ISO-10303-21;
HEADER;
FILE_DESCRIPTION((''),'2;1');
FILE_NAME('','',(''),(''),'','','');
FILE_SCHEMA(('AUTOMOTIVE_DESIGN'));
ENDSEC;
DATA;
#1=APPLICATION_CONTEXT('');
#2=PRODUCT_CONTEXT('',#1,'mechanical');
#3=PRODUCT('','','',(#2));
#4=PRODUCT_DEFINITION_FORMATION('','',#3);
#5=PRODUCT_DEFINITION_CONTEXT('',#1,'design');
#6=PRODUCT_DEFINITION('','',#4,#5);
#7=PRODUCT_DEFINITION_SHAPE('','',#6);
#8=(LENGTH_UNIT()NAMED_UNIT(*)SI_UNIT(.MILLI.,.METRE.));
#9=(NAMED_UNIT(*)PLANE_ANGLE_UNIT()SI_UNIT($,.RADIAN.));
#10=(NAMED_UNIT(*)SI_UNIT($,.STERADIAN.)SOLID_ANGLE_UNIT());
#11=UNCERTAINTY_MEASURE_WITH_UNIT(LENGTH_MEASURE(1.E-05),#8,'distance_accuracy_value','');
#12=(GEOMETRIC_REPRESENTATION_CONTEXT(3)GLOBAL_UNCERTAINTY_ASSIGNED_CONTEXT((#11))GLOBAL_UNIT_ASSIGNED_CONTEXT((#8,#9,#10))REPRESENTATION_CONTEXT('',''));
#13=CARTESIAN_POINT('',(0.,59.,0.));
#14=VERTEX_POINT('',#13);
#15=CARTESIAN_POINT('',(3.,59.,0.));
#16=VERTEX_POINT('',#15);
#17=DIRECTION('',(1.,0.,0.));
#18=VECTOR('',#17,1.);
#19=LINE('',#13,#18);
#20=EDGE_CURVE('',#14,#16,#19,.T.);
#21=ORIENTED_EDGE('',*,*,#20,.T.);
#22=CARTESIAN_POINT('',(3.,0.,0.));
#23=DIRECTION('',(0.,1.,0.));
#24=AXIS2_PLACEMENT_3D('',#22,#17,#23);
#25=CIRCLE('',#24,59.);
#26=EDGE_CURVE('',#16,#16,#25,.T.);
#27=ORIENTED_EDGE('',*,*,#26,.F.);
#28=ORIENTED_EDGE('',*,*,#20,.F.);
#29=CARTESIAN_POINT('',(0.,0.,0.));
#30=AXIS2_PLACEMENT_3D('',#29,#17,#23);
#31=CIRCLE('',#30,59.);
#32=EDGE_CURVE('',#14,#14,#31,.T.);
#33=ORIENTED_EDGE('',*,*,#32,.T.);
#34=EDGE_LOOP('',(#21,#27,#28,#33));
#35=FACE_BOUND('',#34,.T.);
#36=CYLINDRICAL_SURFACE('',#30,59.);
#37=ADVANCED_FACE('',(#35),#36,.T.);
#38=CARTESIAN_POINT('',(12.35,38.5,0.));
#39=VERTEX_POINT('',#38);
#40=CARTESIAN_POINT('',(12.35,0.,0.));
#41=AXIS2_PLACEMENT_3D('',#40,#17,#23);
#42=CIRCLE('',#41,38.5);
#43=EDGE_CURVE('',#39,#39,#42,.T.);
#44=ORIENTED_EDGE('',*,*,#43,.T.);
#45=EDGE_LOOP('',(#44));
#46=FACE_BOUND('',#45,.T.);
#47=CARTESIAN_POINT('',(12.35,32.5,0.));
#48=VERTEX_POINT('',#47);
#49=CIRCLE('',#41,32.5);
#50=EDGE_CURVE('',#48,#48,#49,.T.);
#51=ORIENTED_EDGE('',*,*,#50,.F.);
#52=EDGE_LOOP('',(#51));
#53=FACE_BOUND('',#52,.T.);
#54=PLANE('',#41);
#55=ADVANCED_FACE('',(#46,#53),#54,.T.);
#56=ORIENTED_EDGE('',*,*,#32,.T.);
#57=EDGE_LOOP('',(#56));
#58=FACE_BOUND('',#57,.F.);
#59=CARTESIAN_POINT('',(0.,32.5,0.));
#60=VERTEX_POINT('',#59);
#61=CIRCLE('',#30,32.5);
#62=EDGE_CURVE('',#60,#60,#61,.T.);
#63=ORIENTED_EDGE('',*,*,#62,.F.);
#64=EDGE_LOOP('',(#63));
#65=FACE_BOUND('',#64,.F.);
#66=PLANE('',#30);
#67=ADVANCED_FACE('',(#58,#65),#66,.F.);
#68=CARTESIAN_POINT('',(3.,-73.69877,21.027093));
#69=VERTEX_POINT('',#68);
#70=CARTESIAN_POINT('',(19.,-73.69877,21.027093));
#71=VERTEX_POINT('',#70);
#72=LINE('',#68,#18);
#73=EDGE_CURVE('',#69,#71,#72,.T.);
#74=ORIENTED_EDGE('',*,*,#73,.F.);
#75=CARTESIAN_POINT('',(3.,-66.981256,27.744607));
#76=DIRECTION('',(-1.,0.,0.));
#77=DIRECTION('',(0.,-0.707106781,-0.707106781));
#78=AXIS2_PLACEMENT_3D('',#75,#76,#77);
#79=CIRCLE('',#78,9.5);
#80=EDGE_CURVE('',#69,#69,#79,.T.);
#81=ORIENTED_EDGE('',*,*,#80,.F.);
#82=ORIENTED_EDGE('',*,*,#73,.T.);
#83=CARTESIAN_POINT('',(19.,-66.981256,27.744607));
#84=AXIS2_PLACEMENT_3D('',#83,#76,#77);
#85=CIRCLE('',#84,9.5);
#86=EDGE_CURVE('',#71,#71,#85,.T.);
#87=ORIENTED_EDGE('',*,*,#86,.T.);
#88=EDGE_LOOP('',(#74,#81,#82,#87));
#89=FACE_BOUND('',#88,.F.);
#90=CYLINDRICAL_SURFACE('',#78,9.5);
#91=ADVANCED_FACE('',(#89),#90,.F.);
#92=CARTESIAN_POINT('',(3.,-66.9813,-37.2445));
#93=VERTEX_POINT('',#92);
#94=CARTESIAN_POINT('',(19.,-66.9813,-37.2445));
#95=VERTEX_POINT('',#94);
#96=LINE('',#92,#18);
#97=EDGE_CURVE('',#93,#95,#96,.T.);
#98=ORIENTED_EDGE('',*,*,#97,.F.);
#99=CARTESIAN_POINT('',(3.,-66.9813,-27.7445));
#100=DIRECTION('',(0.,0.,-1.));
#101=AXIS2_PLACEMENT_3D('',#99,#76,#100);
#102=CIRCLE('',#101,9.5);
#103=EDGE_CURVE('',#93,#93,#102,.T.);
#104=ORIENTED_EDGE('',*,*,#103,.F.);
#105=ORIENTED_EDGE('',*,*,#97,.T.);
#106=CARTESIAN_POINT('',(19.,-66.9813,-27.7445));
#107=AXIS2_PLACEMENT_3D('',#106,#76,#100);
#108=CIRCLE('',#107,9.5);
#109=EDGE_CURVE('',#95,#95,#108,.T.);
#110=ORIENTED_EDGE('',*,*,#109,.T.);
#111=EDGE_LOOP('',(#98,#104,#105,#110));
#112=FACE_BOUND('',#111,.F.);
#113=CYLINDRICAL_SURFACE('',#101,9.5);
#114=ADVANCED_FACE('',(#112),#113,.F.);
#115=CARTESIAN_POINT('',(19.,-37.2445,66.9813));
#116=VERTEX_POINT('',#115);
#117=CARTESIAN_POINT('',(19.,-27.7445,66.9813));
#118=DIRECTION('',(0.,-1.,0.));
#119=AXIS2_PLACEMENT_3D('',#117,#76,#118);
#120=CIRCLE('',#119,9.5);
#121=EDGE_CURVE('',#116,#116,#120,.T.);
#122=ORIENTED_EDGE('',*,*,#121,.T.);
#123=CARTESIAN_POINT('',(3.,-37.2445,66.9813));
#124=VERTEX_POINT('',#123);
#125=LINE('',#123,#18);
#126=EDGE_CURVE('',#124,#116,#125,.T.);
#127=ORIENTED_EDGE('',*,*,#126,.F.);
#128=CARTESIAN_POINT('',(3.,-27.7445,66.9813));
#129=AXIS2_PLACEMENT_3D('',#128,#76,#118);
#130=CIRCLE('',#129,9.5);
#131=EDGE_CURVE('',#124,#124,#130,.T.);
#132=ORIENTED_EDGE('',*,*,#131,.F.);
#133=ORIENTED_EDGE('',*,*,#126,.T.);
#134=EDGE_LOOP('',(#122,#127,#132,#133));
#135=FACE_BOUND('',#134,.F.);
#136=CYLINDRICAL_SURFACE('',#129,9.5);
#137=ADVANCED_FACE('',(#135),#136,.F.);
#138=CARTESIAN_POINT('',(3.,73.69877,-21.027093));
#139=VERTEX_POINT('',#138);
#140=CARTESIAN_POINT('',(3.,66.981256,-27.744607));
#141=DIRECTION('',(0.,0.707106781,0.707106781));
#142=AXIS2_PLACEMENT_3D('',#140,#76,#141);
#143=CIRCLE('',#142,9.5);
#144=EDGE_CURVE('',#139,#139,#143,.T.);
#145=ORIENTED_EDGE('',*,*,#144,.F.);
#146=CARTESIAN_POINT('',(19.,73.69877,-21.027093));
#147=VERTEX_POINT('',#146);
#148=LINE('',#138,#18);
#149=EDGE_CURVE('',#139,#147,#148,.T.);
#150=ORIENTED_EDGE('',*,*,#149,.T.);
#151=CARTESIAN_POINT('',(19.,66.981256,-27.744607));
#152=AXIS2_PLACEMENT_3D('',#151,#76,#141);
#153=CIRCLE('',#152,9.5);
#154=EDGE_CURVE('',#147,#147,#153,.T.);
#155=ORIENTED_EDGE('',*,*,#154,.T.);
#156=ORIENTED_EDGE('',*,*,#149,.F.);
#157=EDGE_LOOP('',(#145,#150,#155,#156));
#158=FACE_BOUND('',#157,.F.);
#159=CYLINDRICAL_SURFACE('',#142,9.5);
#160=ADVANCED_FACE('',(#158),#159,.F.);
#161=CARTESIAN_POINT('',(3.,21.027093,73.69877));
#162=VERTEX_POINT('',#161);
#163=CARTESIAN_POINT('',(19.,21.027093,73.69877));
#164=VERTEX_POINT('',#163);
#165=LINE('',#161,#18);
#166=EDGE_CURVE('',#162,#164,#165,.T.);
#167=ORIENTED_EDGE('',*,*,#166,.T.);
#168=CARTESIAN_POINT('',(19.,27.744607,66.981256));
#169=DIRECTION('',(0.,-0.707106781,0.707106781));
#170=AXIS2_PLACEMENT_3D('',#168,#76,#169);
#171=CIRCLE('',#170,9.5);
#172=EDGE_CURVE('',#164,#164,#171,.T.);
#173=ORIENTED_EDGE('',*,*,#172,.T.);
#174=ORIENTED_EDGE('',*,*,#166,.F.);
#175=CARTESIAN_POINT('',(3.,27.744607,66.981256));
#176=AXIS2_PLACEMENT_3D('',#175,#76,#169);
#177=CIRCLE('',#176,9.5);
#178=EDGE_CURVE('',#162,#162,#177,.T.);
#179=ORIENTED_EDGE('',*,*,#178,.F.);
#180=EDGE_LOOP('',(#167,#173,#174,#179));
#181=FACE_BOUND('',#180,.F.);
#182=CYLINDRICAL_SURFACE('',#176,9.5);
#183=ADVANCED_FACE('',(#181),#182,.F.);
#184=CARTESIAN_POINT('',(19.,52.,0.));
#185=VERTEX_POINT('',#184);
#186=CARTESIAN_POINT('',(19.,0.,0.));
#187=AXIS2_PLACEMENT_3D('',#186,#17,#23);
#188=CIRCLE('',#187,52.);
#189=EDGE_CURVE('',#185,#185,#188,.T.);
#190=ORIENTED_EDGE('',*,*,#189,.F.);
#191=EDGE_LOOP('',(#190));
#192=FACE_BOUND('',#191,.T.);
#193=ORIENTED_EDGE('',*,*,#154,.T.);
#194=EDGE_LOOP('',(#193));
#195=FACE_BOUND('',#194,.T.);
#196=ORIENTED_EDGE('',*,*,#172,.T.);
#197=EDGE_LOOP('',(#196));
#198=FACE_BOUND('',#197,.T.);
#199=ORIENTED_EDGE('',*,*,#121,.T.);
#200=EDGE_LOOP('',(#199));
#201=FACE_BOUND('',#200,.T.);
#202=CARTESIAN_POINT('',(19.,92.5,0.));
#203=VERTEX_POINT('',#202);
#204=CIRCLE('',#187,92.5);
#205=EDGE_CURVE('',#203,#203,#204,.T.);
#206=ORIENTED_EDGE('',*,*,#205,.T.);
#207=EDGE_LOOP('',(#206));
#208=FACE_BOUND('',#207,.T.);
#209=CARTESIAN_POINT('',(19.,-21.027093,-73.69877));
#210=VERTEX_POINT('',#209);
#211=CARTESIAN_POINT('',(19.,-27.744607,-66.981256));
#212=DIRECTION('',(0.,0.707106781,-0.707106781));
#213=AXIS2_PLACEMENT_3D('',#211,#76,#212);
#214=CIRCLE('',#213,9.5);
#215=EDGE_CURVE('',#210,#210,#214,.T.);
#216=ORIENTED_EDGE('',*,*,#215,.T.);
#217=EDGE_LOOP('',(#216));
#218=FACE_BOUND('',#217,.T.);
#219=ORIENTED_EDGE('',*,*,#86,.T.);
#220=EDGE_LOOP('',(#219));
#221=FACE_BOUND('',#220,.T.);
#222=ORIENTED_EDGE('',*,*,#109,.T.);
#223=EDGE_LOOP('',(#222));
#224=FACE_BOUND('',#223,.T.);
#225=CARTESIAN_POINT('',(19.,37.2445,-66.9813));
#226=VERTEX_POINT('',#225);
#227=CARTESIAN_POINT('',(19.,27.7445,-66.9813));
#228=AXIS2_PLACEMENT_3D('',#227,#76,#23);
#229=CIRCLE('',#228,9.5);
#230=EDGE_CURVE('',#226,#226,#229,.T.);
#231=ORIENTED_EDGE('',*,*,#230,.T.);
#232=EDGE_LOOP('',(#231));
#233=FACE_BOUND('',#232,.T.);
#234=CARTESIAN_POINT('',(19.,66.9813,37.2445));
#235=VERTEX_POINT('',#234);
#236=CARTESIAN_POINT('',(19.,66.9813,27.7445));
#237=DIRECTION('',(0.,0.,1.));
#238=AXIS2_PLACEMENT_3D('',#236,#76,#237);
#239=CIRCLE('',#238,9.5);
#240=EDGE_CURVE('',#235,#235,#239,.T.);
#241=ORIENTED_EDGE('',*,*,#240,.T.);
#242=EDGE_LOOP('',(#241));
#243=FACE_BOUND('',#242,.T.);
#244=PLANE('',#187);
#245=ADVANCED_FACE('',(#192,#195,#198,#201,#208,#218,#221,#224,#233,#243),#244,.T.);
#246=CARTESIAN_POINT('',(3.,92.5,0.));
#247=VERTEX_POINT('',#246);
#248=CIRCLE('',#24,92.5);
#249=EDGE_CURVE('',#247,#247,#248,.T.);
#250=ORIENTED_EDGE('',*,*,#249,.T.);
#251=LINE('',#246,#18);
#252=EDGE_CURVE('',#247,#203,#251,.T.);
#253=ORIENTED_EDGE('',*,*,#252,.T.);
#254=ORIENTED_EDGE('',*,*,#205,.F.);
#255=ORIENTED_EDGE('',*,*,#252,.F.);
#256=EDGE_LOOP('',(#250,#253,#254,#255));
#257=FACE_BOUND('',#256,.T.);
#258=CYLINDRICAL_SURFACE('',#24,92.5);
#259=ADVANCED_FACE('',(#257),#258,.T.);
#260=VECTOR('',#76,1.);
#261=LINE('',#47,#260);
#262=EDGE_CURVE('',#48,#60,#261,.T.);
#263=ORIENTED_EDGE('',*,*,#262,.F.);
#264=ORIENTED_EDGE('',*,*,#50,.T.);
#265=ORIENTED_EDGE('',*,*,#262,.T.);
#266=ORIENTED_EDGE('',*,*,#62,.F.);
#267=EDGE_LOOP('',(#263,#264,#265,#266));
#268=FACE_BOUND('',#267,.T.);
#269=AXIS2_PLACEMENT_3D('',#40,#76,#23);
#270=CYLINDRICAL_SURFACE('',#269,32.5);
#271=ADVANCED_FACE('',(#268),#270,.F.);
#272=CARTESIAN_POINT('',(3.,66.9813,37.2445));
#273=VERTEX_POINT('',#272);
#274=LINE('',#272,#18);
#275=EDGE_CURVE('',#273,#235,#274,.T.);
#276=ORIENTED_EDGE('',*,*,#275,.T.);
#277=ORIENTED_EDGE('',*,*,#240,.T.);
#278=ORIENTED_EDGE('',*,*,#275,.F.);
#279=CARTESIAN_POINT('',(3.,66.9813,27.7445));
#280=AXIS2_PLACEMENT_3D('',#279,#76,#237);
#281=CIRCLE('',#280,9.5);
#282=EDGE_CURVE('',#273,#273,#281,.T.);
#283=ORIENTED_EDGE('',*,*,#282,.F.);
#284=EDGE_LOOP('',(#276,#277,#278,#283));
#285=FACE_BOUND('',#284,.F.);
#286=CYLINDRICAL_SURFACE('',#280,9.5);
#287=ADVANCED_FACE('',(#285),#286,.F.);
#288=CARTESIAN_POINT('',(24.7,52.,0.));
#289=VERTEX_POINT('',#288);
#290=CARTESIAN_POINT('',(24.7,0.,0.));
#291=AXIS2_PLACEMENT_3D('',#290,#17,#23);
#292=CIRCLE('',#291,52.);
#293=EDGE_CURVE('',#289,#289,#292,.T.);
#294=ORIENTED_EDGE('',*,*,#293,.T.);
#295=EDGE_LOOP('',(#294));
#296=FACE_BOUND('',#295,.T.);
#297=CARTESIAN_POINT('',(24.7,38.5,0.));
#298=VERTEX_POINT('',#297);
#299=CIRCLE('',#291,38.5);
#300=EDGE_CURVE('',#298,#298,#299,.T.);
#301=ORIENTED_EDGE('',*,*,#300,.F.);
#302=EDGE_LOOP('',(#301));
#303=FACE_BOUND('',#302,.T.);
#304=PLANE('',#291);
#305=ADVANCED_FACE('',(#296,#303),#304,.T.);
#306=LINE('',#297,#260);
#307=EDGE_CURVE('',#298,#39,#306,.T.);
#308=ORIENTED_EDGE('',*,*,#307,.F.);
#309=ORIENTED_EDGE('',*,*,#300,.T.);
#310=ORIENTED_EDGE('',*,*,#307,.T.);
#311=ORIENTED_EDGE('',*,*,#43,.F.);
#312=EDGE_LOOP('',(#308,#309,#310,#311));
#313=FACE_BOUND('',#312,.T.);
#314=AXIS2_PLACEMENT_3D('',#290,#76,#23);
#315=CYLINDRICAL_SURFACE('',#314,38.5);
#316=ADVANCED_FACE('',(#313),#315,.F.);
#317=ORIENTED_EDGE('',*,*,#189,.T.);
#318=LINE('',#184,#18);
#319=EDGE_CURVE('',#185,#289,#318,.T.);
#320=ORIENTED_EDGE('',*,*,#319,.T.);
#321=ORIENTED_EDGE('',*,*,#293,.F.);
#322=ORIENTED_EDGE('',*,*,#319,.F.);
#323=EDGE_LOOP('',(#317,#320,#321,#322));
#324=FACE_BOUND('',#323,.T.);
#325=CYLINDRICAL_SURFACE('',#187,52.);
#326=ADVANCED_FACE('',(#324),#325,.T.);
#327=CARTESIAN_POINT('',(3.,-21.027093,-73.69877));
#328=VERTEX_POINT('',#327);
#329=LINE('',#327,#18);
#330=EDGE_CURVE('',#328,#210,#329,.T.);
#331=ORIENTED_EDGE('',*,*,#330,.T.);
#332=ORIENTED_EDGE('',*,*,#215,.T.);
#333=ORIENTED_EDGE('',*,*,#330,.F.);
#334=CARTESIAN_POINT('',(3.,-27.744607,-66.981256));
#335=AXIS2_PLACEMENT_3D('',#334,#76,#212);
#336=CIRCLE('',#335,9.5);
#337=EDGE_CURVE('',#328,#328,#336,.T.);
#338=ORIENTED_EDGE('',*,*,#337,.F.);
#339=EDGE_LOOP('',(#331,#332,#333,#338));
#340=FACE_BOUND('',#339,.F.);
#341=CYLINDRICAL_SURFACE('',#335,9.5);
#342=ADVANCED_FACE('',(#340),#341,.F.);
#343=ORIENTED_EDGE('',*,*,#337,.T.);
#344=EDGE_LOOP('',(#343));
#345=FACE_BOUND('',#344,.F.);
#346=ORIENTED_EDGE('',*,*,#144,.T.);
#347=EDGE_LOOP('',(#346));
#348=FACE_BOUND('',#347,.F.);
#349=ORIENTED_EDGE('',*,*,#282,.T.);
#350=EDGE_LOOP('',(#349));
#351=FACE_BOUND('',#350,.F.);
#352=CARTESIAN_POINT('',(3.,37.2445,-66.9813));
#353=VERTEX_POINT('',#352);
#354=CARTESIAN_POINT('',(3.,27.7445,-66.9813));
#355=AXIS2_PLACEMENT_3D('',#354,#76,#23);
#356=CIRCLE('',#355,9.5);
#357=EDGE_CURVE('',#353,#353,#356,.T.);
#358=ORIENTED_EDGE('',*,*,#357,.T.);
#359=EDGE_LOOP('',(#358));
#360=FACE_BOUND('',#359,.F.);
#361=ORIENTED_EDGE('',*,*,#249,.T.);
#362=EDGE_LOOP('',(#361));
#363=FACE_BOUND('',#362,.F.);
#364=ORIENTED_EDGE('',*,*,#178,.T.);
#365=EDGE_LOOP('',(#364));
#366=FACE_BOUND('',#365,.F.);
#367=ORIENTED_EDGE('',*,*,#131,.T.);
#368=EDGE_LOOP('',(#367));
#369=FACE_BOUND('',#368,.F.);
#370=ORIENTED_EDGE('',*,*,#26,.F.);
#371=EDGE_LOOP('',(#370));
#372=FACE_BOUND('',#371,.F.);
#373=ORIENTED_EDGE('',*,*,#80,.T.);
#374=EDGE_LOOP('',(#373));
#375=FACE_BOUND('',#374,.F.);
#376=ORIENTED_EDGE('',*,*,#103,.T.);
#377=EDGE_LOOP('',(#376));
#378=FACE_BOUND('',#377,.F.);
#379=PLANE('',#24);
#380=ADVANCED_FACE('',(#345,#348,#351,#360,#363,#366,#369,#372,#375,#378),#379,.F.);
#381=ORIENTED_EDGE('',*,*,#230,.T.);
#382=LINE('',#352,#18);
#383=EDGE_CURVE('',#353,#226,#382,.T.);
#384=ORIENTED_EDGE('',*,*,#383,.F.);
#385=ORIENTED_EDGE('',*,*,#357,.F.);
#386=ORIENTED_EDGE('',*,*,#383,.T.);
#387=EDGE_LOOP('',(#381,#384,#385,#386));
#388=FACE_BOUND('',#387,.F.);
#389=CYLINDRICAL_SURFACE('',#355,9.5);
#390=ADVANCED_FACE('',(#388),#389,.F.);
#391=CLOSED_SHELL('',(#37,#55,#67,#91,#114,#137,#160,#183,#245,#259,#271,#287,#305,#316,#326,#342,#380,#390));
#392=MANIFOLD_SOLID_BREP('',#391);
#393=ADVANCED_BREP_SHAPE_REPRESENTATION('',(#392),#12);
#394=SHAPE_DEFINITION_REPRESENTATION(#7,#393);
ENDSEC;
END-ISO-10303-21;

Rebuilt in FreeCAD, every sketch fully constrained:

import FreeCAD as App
import Part
import Sketcher

V = App.Vector
Q = App.Units.Quantity


def add_polygon(sketch, points):
    """Adds a closed chain of lines whose ends are joined by coincident constraints."""
    first, n = sketch.GeometryCount, len(points)
    for a, b in zip(points, points[1:] + points[:1]):
        sketch.addGeometry(Part.LineSegment(App.Vector(*a, 0), App.Vector(*b, 0)), False)
    for i in range(n):
        sketch.addConstraint(Sketcher.Constraint("Coincident", first + i, 2, first + (i + 1) % n, 1))

doc = App.newDocument("Part")
body = doc.addObject("PartDesign::Body", "Body")

sketch1 = doc.addObject("Sketcher::SketchObject", "Sketch")
body.addObject(sketch1)
sketch1.AttachmentSupport = (doc.XY_Plane, [""])
sketch1.MapMode = "FlatFace"
add_polygon(sketch1, [(3, 59), (0, 59), (0, 32.5), (12.3, 32.5), (12.3, 38.5), (24.7, 38.5), (24.7, 52), (19, 52), (19, 92.5), (3, 92.5)])
sketch1.addConstraint(Sketcher.Constraint("Horizontal", 0))
sketch1.addConstraint(Sketcher.Constraint("Vertical", 1))
sketch1.addConstraint(Sketcher.Constraint("Horizontal", 2))
sketch1.addConstraint(Sketcher.Constraint("Vertical", 3))
sketch1.addConstraint(Sketcher.Constraint("Horizontal", 4))
sketch1.addConstraint(Sketcher.Constraint("Vertical", 5))
sketch1.addConstraint(Sketcher.Constraint("Horizontal", 6))
sketch1.addConstraint(Sketcher.Constraint("Vertical", 7))
sketch1.addConstraint(Sketcher.Constraint("Horizontal", 8))
sketch1.addConstraint(Sketcher.Constraint("Vertical", 9))
sketch1.addConstraint(Sketcher.Constraint("PointOnObject", 0, 2, -2))
sketch1.addConstraint(Sketcher.Constraint("Equal", 2, 4))
sketch1.addConstraint(Sketcher.Constraint("DistanceX", 0, 2, 0, 1, Q("3 mm")))
sketch1.addConstraint(Sketcher.Constraint("DistanceX", -1, 1, 6, 2, Q("19 mm")))
sketch1.addConstraint(Sketcher.Constraint("DistanceX", 2, 1, 2, 2, Q("12.35 mm")))
sketch1.addConstraint(Sketcher.Constraint("DistanceY", 3, 1, 3, 2, Q("6 mm")))
sketch1.addConstraint(Sketcher.Constraint("DistanceY", 1, 2, 1, 1, Q("26.5 mm")))
sketch1.addConstraint(Sketcher.Constraint("DistanceY", 5, 1, 5, 2, Q("13.5 mm")))
sketch1.addConstraint(Sketcher.Constraint("DistanceY", 7, 1, 7, 2, Q("40.5 mm")))
sketch1.addConstraint(Sketcher.Constraint("DistanceY", -1, 1, 0, 2, Q("59 mm")))
revolution = doc.addObject("PartDesign::Revolution", "Revolution")
body.addObject(revolution)
revolution.Profile = sketch1
revolution.ReferenceAxis = (sketch1, ["H_Axis"])
revolution.Angle = 360

sketch2 = doc.addObject("Sketcher::SketchObject", "Sketch001")
body.addObject(sketch2)
sketch2.AttachmentSupport = (doc.YZ_Plane, [""])
sketch2.MapMode = "FlatFace"
sketch2.AttachmentOffset = App.Placement(V(0, 0, 3), App.Rotation())
sketch2.addGeometry(Part.Circle(V(67, 28, 0), V(0, 0, 1), 10), False)
sketch2.addConstraint(Sketcher.Constraint("Diameter", 0, Q("19 mm")))
sketch2.addConstraint(Sketcher.Constraint("DistanceX", -1, 1, 0, 3, Q("66.9813 mm")))
sketch2.addConstraint(Sketcher.Constraint("DistanceY", -1, 1, 0, 3, Q("27.7445 mm")))
pocket1 = doc.addObject("PartDesign::Pocket", "Pocket")
body.addObject(pocket1)
pocket1.Profile = sketch2
pocket1.Length = 19
pocket1.Reversed = True
doc.recompute()

polarpattern = doc.addObject("PartDesign::PolarPattern", "PolarPattern")
body.addObject(polarpattern)
polarpattern.Originals = [pocket1]
polarpattern.Axis = (doc.X_Axis, [""])
polarpattern.Angle = 360
polarpattern.Occurrences = 8
body.Tip = polarpattern

doc.recompute()
